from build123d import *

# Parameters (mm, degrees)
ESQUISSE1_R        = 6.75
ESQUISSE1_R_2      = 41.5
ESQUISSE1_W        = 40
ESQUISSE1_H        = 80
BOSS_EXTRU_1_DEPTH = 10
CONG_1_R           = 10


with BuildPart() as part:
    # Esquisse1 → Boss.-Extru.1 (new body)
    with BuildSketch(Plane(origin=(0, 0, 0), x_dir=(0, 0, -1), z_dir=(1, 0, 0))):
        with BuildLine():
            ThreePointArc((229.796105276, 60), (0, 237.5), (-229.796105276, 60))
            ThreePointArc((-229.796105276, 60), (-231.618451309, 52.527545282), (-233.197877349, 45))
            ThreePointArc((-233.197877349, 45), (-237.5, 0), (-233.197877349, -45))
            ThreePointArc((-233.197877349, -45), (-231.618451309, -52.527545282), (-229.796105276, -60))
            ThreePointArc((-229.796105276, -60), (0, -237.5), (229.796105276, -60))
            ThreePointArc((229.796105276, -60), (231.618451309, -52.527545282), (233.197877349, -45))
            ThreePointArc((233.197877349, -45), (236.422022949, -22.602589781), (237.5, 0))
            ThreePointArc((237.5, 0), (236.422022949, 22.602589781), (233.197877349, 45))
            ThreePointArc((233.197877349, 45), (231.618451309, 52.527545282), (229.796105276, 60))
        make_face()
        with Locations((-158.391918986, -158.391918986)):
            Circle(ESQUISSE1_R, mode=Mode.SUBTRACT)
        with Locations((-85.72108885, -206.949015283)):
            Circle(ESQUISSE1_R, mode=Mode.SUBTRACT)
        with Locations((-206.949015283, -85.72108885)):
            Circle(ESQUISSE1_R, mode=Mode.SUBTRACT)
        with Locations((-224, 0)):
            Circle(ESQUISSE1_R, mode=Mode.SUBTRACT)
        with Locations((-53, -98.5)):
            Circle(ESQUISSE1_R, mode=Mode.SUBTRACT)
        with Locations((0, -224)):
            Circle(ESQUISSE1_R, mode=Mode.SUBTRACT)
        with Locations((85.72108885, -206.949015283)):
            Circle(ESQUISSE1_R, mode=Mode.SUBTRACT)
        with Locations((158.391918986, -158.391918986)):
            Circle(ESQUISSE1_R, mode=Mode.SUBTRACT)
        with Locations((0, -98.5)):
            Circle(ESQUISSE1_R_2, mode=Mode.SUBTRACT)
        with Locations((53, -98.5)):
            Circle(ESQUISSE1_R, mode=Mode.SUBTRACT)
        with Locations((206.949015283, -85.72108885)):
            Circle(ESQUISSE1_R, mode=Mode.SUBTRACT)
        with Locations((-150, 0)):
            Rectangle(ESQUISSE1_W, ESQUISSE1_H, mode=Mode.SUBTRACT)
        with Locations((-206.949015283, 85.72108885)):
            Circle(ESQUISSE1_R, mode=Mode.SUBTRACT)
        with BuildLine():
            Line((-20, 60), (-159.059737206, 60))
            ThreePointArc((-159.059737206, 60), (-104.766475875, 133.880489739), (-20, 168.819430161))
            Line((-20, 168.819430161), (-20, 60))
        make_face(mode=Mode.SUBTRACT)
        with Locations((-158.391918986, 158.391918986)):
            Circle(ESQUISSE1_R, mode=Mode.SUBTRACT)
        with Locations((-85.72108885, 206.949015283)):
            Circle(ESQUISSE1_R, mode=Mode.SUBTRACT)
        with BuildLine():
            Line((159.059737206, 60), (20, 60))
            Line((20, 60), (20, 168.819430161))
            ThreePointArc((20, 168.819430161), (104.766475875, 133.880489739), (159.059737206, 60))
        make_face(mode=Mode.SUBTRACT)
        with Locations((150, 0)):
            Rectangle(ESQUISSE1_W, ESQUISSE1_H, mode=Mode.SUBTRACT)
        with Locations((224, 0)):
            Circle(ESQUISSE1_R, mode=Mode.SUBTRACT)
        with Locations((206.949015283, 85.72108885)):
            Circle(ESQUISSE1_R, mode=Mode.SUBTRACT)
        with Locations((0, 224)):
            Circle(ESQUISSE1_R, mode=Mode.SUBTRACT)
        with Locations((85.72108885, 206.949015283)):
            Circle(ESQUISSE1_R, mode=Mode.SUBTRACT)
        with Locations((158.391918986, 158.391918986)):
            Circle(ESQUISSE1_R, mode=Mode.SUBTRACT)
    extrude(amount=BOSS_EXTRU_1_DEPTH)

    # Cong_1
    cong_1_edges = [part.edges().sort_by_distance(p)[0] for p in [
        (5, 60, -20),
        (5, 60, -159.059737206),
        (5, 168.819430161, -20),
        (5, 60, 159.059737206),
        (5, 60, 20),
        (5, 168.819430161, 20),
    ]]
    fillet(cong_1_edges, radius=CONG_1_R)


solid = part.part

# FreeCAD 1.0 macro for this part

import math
import FreeCAD as App
import Part
import Sketcher
Q = App.Units.Quantity


def edges_at(feature, points):
    """Names of the edges that pass closest to the given points."""
    edges = feature.Shape.Edges
    near = lambda p: min(range(len(edges)), key=lambda i: edges[i].distToShape(Part.Vertex(*p))[0])
    return sorted({f"Edge{near(p) + 1}" for p in points})


def add_polygon(sketch, points):
    """Adds a closed chain of lines whose ends are joined by coincident constraints."""
    first, n = sketch.GeometryCount, len(points)
    for a, b in zip(points, points[1:] + points[:1]):
        sketch.addGeometry(Part.LineSegment(App.Vector(*a, 0), App.Vector(*b, 0)), False)
    for i in range(n):
        sketch.addConstraint(Sketcher.Constraint("Coincident", first + i, 2, first + (i + 1) % n, 1))

doc = App.newDocument("Part")
body = doc.addObject("PartDesign::Body", "Body")

sketch1 = body.newObject("Sketcher::SketchObject", "Sketch")
sketch1.AttachmentSupport = (doc.getObject("YZ_Plane"), [""])
sketch1.MapMode = "FlatFace"
sketch1.addGeometry(Part.ArcOfCircle(Part.Circle(App.Vector(0, 0, 0), App.Vector(0, 0, 1), 238), math.radians(-75), math.radians(75)), False)
sketch1.addGeometry(Part.ArcOfCircle(Part.Circle(App.Vector(0, 0, 0), App.Vector(0, 0, 1), 237), math.radians(75.37), math.radians(79.08)), False)
sketch1.addGeometry(Part.ArcOfCircle(Part.Circle(App.Vector(0, 0, 0), App.Vector(0, 0, 1), 238), math.radians(79), math.radians(101)), False)
sketch1.addGeometry(Part.ArcOfCircle(Part.Circle(App.Vector(0, 0, 0), App.Vector(0, 0, 1), 237), math.radians(100.92), math.radians(104.63)), False)
sketch1.addGeometry(Part.ArcOfCircle(Part.Circle(App.Vector(0, 0, 0), App.Vector(0, 0, 1), 238), math.radians(105), math.radians(255)), False)
sketch1.addGeometry(Part.ArcOfCircle(Part.Circle(App.Vector(0, 0, 0), App.Vector(0, 0, 1), 237), math.radians(-104.63), math.radians(-100.92)), False)
sketch1.addGeometry(Part.ArcOfCircle(Part.Circle(App.Vector(0, 0, 0), App.Vector(0, 0, 1), 237), math.radians(-100.92), math.radians(-90)), False)
sketch1.addGeometry(Part.ArcOfCircle(Part.Circle(App.Vector(0, 0, 0), App.Vector(0, 0, 1), 237), math.radians(-90), math.radians(-79.08)), False)
sketch1.addGeometry(Part.ArcOfCircle(Part.Circle(App.Vector(0, 0, 0), App.Vector(0, 0, 1), 237), math.radians(-79.08), math.radians(-75.37)), False)
sketch1.addGeometry(Part.Circle(App.Vector(-158, 158, 0), App.Vector(0, 0, 1), 7), False)
sketch1.addGeometry(Part.Circle(App.Vector(-207, 86, 0), App.Vector(0, 0, 1), 7), False)
sketch1.addGeometry(Part.Circle(App.Vector(-86, 207, 0), App.Vector(0, 0, 1), 7), False)
sketch1.addGeometry(Part.Circle(App.Vector(-98, 53, 0), App.Vector(0, 0, 1), 7), False)
sketch1.addGeometry(Part.Circle(App.Vector(-224, 0, 0), App.Vector(0, 0, 1), 7), False)
sketch1.addGeometry(Part.Circle(App.Vector(-207, -86, 0), App.Vector(0, 0, 1), 7), False)
sketch1.addGeometry(Part.Circle(App.Vector(-158, -158, 0), App.Vector(0, 0, 1), 7), False)
sketch1.addGeometry(Part.Circle(App.Vector(-98, 0, 0), App.Vector(0, 0, 1), 42), False)
sketch1.addGeometry(Part.Circle(App.Vector(-98, -53, 0), App.Vector(0, 0, 1), 7), False)
sketch1.addGeometry(Part.Circle(App.Vector(-86, -207, 0), App.Vector(0, 0, 1), 7), False)
sketch1.addGeometry(Part.Circle(App.Vector(0, 224, 0), App.Vector(0, 0, 1), 7), False)
add_polygon(sketch1, [(-40, 130), (-40, 170), (40, 170), (40, 130)])
sketch1.addGeometry(Part.Circle(App.Vector(86, 207, 0), App.Vector(0, 0, 1), 7), False)
sketch1.addGeometry(Part.LineSegment(App.Vector(169, 20, 0), App.Vector(60, 20, 0)), False)
sketch1.addGeometry(Part.LineSegment(App.Vector(60, 20, 0), App.Vector(60, 159, 0)), False)
sketch1.addGeometry(Part.ArcOfCircle(Part.Circle(App.Vector(0, 0, 0), App.Vector(0, 0, 1), 170), math.radians(7), math.radians(69)), False)
sketch1.addGeometry(Part.Circle(App.Vector(158, 158, 0), App.Vector(0, 0, 1), 7), False)
sketch1.addGeometry(Part.Circle(App.Vector(207, 86, 0), App.Vector(0, 0, 1), 7), False)
sketch1.addGeometry(Part.ArcOfCircle(Part.Circle(App.Vector(0, 0, 0), App.Vector(0, 0, 1), 170), math.radians(-69), math.radians(-7)), False)
sketch1.addGeometry(Part.LineSegment(App.Vector(60, -159, 0), App.Vector(60, -20, 0)), False)
sketch1.addGeometry(Part.LineSegment(App.Vector(60, -20, 0), App.Vector(169, -20, 0)), False)
add_polygon(sketch1, [(-40, -170), (-40, -130), (40, -130), (40, -170)])
sketch1.addGeometry(Part.Circle(App.Vector(0, -224, 0), App.Vector(0, 0, 1), 7), False)
sketch1.addGeometry(Part.Circle(App.Vector(86, -207, 0), App.Vector(0, 0, 1), 7), False)
sketch1.addGeometry(Part.Circle(App.Vector(224, 0, 0), App.Vector(0, 0, 1), 7), False)
sketch1.addGeometry(Part.Circle(App.Vector(207, -86, 0), App.Vector(0, 0, 1), 7), False)
sketch1.addGeometry(Part.Circle(App.Vector(158, -158, 0), App.Vector(0, 0, 1), 7), False)
sketch1.addConstraint([
    Sketcher.Constraint("Tangent", 0, 2, 1, 1),
    Sketcher.Constraint("Tangent", 1, 2, 2, 1),
    Sketcher.Constraint("Tangent", 2, 2, 3, 1),
    Sketcher.Constraint("Tangent", 3, 2, 4, 1),
    Sketcher.Constraint("Tangent", 4, 2, 5, 1),
    Sketcher.Constraint("Tangent", 5, 2, 6, 1),
    Sketcher.Constraint("Tangent", 6, 2, 7, 1),
    Sketcher.Constraint("Tangent", 7, 2, 8, 1),
    Sketcher.Constraint("Coincident", 8, 2, 0, 1),
    Sketcher.Constraint("Coincident", 25, 2, 26, 1),
    Sketcher.Constraint("Coincident", 26, 2, 27, 2),
    Sketcher.Constraint("Coincident", 27, 1, 25, 1),
    Sketcher.Constraint("Coincident", 30, 1, 31, 1),
    Sketcher.Constraint("Coincident", 31, 2, 32, 1),
    Sketcher.Constraint("Coincident", 32, 2, 30, 2),
    Sketcher.Constraint("Vertical", 20),
    Sketcher.Constraint("Horizontal", 21),
    Sketcher.Constraint("Vertical", 22),
    Sketcher.Constraint("Horizontal", 23),
    Sketcher.Constraint("Horizontal", 25),
    Sketcher.Constraint("Vertical", 26),
    Sketcher.Constraint("Vertical", 31),
    Sketcher.Constraint("Horizontal", 32),
    Sketcher.Constraint("Vertical", 33),
    Sketcher.Constraint("Horizontal", 34),
    Sketcher.Constraint("Vertical", 35),
    Sketcher.Constraint("Horizontal", 36),
    Sketcher.Constraint("Coincident", 0, 3, -1, 1),
    Sketcher.Constraint("Coincident", 2, 3, -1, 1),
    Sketcher.Constraint("Coincident", 4, 3, -1, 1),
    Sketcher.Constraint("Coincident", 6, 3, -1, 1),
    Sketcher.Constraint("Coincident", 27, 3, -1, 1),
    Sketcher.Constraint("Coincident", 30, 3, -1, 1),
    Sketcher.Constraint("Equal", 6, 7),
    Sketcher.Constraint("Equal", 9, 10),
    Sketcher.Constraint("Equal", 10, 11),
    Sketcher.Constraint("Equal", 11, 12),
    Sketcher.Constraint("Equal", 12, 13),
    Sketcher.Constraint("Equal", 13, 14),
    Sketcher.Constraint("Equal", 14, 15),
    Sketcher.Constraint("Equal", 15, 17),
    Sketcher.Constraint("Equal", 17, 18),
    Sketcher.Constraint("Equal", 18, 19),
    Sketcher.Constraint("Equal", 19, 24),
    Sketcher.Constraint("Equal", 24, 28),
    Sketcher.Constraint("Equal", 28, 29),
    Sketcher.Constraint("Equal", 27, 30),
    Sketcher.Constraint("Equal", 29, 37),
    Sketcher.Constraint("Equal", 37, 38),
    Sketcher.Constraint("Equal", 38, 39),
    Sketcher.Constraint("Equal", 39, 40),
    Sketcher.Constraint("Equal", 40, 41),
    Sketcher.Constraint("Symmetric", 18, 3, 24, 3, -1, 1),
    Sketcher.Constraint("Symmetric", 15, 3, 28, 3, -1, 1),
    Sketcher.Constraint("Symmetric", 14, 3, 29, 3, -1, 1),
    Sketcher.Constraint("Symmetric", 19, 3, 37, 3, -1, 1),
    Sketcher.Constraint("Symmetric", 11, 3, 38, 3, -1, 1),
    Sketcher.Constraint("Symmetric", 13, 3, 39, 3, -1, 1),
    Sketcher.Constraint("Symmetric", 10, 3, 40, 3, -1, 1),
    Sketcher.Constraint("Symmetric", 9, 3, 41, 3, -1, 1),
    Sketcher.Constraint("Symmetric", 22, 2, 33, 2, -1, 1),
    Sketcher.Constraint("Symmetric", 20, 2, 35, 2, -1, 1),
    Sketcher.Constraint("Symmetric", 11, 3, 24, 3, -2),
    Sketcher.Constraint("Symmetric", 9, 3, 28, 3, -2),
    Sketcher.Constraint("Symmetric", 10, 3, 29, 3, -2),
    Sketcher.Constraint("Symmetric", 12, 3, 17, 3, -1),
    Sketcher.Constraint("Symmetric", 25, 2, 31, 2, -1),
    Sketcher.Constraint("PointOnObject", 13, 3, -1),
    Sketcher.Constraint("PointOnObject", 16, 3, -1),
    Sketcher.Constraint("PointOnObject", 19, 3, -2),
    Sketcher.Constraint("PointOnObject", 6, 2, -2),
    Sketcher.Constraint("Horizontal", 1, 2, 2, 2),
    Sketcher.Constraint("Horizontal", 0, 2, 3, 2),
    Sketcher.Constraint("Horizontal", 5, 2, 7, 2),
    Sketcher.Constraint("Horizontal", 4, 2, 8, 2),
    Sketcher.Constraint("Vertical", 12, 3, 16, 3),
    Sketcher.Constraint("Vertical", 3, 2, 4, 2),
    Sketcher.Constraint("Vertical", 2, 2, 5, 2),
    Sketcher.Constraint("Vertical", 8, 2, 25, 2),
    Sketcher.Constraint("Vertical", 23, 2, 33, 2),
    Sketcher.Constraint("Diameter", 16, Q("83 mm")),
    Sketcher.Constraint("Radius", 27, Q("170 mm")),
    Sketcher.Constraint("Diameter", 9, Q("13.5 mm")),
    Sketcher.Constraint("Radius", 0, Q("237.5 mm")),
    Sketcher.Constraint("DistanceX", 21, 1, 21, 2, Q("80 mm")),
    Sketcher.Constraint("DistanceY", 20, 1, 20, 2, Q("40 mm")),
    Sketcher.Constraint("DistanceY", -1, 1, 12, 3, Q("53 mm")),
    Sketcher.Constraint("DistanceX", 13, 3, -1, 1, Q("224 mm")),
    Sketcher.Constraint("DistanceY", -1, 1, 19, 3, Q("224 mm")),
    Sketcher.Constraint("DistanceX", -1, 1, 1, 2, Q("45 mm")),
    Sketcher.Constraint("DistanceY", -1, 1, 20, 2, Q("170 mm")),
    Sketcher.Constraint("DistanceX", -1, 1, 25, 2, Q("60 mm")),
    Sketcher.Constraint("DistanceY", -1, 1, 25, 2, Q("20 mm")),
    Sketcher.Constraint("DistanceX", 12, 3, -1, 1, Q("98.5 mm")),
    Sketcher.Constraint("DistanceX", 9, 3, -1, 1, Q("158.391919 mm")),
    Sketcher.Constraint("DistanceY", -1, 1, 9, 3, Q("158.391919 mm")),
    Sketcher.Constraint("DistanceY", -1, 1, 10, 3, Q("85.721089 mm")),
    Sketcher.Constraint("DistanceX", 11, 3, -1, 1, Q("85.721089 mm")),
    Sketcher.Constraint("DistanceY", 24, 3, 0, 2, Q("22.84709 mm")),
    Sketcher.Constraint("DistanceX", 10, 3, -1, 1, Q("206.949015 mm")),
])
pad1 = body.newObject("PartDesign::Pad", "Pad")
pad1.Profile = sketch1
pad1.Length = 10
doc.recompute()

fillet = body.newObject("PartDesign::Fillet", "Fillet")
fillet.Base = (pad1, edges_at(pad1, [
    (5, 60, -20),
    (5, 60, -159.06),
    (5, 168.819, -20),
    (5, 60, 159.06),
    (5, 60, 20),
    (5, 168.819, 20),
]))
fillet.Radius = 10

doc.recompute()
